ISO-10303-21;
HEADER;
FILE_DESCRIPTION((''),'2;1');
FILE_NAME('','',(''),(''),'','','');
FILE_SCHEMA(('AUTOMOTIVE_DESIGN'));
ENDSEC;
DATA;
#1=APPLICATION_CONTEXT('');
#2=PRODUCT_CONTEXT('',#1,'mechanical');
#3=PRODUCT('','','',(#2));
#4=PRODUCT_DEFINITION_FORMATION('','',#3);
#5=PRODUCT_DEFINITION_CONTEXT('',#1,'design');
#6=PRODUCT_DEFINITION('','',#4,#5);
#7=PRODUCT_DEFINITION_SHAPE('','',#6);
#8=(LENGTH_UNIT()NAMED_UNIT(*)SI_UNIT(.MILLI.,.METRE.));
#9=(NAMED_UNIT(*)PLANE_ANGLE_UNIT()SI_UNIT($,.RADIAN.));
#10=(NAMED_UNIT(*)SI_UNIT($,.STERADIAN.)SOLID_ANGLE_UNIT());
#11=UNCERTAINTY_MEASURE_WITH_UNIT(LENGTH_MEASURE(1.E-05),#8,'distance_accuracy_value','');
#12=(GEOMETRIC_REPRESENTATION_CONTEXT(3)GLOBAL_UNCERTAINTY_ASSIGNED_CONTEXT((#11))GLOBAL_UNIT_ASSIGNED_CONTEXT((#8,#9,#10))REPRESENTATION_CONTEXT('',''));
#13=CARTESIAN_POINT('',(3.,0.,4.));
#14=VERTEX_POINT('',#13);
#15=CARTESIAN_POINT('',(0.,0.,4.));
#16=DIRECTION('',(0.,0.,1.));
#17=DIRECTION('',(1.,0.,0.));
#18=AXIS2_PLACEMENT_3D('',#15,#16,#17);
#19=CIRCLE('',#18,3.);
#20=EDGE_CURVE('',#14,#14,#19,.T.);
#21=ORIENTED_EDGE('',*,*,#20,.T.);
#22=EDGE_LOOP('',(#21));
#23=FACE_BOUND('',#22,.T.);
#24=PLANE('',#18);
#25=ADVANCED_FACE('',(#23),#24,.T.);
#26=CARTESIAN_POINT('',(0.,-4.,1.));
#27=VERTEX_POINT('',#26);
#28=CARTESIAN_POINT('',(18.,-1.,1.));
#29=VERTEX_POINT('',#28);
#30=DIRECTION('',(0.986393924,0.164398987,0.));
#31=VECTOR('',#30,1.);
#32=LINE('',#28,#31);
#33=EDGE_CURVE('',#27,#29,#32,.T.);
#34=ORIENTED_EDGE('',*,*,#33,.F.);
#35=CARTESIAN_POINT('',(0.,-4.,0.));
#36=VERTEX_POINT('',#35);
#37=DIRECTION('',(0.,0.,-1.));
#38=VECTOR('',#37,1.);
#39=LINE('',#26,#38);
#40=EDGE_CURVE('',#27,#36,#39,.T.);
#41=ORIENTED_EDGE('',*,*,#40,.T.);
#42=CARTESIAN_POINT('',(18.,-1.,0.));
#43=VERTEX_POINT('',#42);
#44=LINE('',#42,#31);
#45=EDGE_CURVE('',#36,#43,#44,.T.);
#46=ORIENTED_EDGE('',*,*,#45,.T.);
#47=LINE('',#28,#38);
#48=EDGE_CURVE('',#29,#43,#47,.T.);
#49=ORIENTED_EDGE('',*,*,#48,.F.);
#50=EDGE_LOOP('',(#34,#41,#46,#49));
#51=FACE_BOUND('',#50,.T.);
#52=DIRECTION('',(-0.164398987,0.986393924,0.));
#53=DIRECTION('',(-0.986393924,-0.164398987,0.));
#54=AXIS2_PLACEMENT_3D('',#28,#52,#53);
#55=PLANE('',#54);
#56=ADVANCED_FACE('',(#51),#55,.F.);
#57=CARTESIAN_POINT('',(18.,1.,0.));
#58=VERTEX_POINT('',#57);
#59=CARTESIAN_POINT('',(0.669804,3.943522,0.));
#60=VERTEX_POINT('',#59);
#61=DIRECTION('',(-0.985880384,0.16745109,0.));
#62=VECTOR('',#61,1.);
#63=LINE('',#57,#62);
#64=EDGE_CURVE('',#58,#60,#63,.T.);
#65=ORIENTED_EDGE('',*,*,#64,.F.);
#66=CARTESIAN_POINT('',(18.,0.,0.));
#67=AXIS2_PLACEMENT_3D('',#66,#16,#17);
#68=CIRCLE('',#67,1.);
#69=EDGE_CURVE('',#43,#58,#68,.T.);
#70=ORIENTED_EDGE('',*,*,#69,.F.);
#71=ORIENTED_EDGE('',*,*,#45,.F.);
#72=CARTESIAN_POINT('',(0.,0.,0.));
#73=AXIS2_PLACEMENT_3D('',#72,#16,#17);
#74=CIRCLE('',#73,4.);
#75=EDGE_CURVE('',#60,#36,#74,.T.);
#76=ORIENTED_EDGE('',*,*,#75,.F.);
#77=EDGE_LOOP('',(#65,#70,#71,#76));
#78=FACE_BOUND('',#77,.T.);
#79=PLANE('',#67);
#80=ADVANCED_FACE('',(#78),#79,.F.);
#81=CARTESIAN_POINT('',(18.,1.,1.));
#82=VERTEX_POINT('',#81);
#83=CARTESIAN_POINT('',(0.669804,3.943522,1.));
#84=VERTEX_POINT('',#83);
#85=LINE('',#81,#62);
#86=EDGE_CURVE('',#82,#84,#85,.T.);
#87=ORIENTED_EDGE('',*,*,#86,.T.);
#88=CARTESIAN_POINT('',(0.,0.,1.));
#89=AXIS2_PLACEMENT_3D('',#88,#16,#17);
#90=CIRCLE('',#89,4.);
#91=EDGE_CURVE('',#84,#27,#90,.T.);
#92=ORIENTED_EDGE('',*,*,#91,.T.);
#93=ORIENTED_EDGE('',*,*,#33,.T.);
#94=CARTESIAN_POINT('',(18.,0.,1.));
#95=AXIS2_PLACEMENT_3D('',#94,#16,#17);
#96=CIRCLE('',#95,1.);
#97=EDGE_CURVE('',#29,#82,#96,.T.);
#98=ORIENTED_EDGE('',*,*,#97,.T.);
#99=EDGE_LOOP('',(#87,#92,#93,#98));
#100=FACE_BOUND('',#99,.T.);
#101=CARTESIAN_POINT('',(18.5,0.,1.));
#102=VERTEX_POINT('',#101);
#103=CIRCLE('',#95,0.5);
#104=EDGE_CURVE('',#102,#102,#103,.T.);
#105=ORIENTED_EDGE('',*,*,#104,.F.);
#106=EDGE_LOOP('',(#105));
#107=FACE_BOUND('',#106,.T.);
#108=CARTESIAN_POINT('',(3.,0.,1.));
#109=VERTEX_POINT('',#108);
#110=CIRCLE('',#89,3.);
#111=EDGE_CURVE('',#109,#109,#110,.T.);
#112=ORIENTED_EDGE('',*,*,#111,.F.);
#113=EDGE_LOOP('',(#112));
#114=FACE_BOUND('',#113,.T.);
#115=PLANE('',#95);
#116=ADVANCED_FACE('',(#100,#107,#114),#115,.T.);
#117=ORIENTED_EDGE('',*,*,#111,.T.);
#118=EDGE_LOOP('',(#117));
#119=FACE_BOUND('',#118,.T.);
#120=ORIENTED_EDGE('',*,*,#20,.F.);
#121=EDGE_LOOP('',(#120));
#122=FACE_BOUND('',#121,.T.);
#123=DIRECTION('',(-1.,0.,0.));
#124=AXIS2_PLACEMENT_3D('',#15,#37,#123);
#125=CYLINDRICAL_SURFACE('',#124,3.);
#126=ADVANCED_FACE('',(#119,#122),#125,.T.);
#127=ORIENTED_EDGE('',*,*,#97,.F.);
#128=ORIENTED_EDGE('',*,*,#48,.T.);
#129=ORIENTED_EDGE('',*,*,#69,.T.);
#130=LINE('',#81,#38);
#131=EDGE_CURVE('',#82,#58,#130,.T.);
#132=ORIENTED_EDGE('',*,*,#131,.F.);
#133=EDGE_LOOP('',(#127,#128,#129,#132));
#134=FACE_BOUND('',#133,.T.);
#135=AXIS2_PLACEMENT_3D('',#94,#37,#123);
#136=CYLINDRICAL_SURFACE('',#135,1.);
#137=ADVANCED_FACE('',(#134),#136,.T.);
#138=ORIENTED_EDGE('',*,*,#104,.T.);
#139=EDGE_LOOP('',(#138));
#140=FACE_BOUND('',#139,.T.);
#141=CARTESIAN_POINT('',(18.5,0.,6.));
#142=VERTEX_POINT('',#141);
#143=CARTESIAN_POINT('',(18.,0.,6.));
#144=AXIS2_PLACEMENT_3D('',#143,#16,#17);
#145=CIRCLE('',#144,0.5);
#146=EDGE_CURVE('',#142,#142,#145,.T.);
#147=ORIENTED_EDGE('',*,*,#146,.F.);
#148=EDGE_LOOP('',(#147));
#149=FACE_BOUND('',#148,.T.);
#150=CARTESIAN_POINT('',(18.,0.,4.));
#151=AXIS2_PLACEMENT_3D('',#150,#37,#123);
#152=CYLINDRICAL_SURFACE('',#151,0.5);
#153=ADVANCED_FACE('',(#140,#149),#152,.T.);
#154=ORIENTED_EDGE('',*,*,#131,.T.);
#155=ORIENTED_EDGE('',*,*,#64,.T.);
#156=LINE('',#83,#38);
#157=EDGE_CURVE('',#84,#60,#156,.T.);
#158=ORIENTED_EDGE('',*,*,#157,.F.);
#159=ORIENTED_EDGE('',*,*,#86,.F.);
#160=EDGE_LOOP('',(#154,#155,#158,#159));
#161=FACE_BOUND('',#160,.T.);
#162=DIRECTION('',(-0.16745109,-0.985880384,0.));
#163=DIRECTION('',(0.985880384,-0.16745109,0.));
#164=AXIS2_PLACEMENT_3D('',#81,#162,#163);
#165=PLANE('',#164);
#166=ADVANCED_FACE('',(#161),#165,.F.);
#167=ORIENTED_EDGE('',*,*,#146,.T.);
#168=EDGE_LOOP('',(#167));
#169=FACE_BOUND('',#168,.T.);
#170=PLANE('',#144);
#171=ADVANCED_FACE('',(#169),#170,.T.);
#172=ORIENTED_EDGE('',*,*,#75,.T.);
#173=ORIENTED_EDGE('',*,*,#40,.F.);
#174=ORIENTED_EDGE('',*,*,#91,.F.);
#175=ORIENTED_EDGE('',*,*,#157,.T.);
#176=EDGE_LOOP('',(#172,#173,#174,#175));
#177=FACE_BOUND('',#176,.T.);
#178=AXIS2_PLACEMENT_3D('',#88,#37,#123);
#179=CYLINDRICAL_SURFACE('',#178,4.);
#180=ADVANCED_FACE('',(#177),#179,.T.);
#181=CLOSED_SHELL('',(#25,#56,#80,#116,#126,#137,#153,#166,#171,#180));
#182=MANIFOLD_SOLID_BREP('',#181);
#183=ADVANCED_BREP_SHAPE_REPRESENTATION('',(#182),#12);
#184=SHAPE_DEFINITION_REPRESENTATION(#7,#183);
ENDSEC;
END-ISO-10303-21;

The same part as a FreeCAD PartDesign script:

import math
import FreeCAD as App
import Part
import Sketcher

V = App.Vector
Q = App.Units.Quantity

doc = App.newDocument("Part")
body = doc.addObject("PartDesign::Body", "Body")

# Sketch on XY plane
sketch1 = doc.addObject("Sketcher::SketchObject", "Sketch")
body.addObject(sketch1)
sketch1.AttachmentSupport = (doc.XY_Plane, [""])
sketch1.MapMode = "FlatFace"
sketch1.addGeometry(Part.LineSegment(V(18, 1, 0), V(0.7, 3.9, 0)), False)
sketch1.addGeometry(Part.ArcOfCircle(Part.Circle(V(0, 0, 0), V(0, 0, 1), 4), math.radians(80), math.radians(270)), False)
sketch1.addGeometry(Part.LineSegment(V(0, -4, 0), V(18, -1, 0)), False)
sketch1.addGeometry(Part.ArcOfCircle(Part.Circle(V(18, 0, 0), V(0, 0, 1), 1), math.radians(-90), math.radians(90)), False)
sketch1.addConstraint(Sketcher.Constraint("Tangent", 0, 2, 1, 1))
sketch1.addConstraint(Sketcher.Constraint("Coincident", 1, 2, 2, 1))
sketch1.addConstraint(Sketcher.Constraint("Coincident", 2, 2, 3, 1))
sketch1.addConstraint(Sketcher.Constraint("Coincident", 3, 2, 0, 1))
sketch1.addConstraint(Sketcher.Constraint("Coincident", 1, 3, -1, 1))
sketch1.addConstraint(Sketcher.Constraint("Symmetric", 2, 2, 3, 2, -1))
sketch1.addConstraint(Sketcher.Constraint("PointOnObject", 1, 2, -2))
sketch1.addConstraint(Sketcher.Constraint("Vertical", 3, 3, 2, 2))
sketch1.addConstraint(Sketcher.Constraint("Radius", 1, Q("4 mm")))
sketch1.addConstraint(Sketcher.Constraint("Radius", 3, Q("1 mm")))
sketch1.addConstraint(Sketcher.Constraint("DistanceX", -1, 1, 3, 3, Q("18 mm")))
pad1 = doc.addObject("PartDesign::Pad", "Pad")
body.addObject(pad1)
pad1.Profile = sketch1
pad1.Length = 1

# Sketch on XY plane
sketch2 = doc.addObject("Sketcher::SketchObject", "Sketch001")
body.addObject(sketch2)
sketch2.AttachmentSupport = (doc.XY_Plane, [""])
sketch2.MapMode = "FlatFace"
sketch2.AttachmentOffset = App.Placement(V(0, 0, 1), App.Rotation())
sketch2.addGeometry(Part.Circle(V(18, 0, 0), V(0, 0, 1), 0.5), False)
sketch2.addGeometry(Part.Circle(V(0, 0, 0), V(0, 0, 1), 3), False)
sketch2.addConstraint(Sketcher.Constraint("Coincident", 1, 3, -1, 1))
sketch2.addConstraint(Sketcher.Constraint("PointOnObject", 0, 3, -1))
sketch2.addConstraint(Sketcher.Constraint("Diameter", 0, Q("1 mm")))
sketch2.addConstraint(Sketcher.Constraint("Diameter", 1, Q("6 mm")))
sketch2.addConstraint(Sketcher.Constraint("DistanceX", -1, 1, 0, 3, Q("18 mm")))
pad2 = doc.addObject("PartDesign::Pad", "Pad001")
body.addObject(pad2)
pad2.Profile = sketch2
pad2.Length = 3

# Sketch on XY plane
sketch3 = doc.addObject("Sketcher::SketchObject", "Sketch002")
body.addObject(sketch3)
sketch3.AttachmentSupport = (doc.XY_Plane, [""])
sketch3.MapMode = "FlatFace"
sketch3.AttachmentOffset = App.Placement(V(0, 0, 4), App.Rotation())
sketch3.addGeometry(Part.Circle(V(18, 0, 0), V(0, 0, 1), 0.5), False)
sketch3.addConstraint(Sketcher.Constraint("PointOnObject", 0, 3, -1))
sketch3.addConstraint(Sketcher.Constraint("Diameter", 0, Q("1 mm")))
sketch3.addConstraint(Sketcher.Constraint("DistanceX", -1, 1, 0, 3, Q("18 mm")))
pad3 = doc.addObject("PartDesign::Pad", "Pad002")
body.addObject(pad3)
pad3.Profile = sketch3
pad3.Length = 2

doc.recompute()
